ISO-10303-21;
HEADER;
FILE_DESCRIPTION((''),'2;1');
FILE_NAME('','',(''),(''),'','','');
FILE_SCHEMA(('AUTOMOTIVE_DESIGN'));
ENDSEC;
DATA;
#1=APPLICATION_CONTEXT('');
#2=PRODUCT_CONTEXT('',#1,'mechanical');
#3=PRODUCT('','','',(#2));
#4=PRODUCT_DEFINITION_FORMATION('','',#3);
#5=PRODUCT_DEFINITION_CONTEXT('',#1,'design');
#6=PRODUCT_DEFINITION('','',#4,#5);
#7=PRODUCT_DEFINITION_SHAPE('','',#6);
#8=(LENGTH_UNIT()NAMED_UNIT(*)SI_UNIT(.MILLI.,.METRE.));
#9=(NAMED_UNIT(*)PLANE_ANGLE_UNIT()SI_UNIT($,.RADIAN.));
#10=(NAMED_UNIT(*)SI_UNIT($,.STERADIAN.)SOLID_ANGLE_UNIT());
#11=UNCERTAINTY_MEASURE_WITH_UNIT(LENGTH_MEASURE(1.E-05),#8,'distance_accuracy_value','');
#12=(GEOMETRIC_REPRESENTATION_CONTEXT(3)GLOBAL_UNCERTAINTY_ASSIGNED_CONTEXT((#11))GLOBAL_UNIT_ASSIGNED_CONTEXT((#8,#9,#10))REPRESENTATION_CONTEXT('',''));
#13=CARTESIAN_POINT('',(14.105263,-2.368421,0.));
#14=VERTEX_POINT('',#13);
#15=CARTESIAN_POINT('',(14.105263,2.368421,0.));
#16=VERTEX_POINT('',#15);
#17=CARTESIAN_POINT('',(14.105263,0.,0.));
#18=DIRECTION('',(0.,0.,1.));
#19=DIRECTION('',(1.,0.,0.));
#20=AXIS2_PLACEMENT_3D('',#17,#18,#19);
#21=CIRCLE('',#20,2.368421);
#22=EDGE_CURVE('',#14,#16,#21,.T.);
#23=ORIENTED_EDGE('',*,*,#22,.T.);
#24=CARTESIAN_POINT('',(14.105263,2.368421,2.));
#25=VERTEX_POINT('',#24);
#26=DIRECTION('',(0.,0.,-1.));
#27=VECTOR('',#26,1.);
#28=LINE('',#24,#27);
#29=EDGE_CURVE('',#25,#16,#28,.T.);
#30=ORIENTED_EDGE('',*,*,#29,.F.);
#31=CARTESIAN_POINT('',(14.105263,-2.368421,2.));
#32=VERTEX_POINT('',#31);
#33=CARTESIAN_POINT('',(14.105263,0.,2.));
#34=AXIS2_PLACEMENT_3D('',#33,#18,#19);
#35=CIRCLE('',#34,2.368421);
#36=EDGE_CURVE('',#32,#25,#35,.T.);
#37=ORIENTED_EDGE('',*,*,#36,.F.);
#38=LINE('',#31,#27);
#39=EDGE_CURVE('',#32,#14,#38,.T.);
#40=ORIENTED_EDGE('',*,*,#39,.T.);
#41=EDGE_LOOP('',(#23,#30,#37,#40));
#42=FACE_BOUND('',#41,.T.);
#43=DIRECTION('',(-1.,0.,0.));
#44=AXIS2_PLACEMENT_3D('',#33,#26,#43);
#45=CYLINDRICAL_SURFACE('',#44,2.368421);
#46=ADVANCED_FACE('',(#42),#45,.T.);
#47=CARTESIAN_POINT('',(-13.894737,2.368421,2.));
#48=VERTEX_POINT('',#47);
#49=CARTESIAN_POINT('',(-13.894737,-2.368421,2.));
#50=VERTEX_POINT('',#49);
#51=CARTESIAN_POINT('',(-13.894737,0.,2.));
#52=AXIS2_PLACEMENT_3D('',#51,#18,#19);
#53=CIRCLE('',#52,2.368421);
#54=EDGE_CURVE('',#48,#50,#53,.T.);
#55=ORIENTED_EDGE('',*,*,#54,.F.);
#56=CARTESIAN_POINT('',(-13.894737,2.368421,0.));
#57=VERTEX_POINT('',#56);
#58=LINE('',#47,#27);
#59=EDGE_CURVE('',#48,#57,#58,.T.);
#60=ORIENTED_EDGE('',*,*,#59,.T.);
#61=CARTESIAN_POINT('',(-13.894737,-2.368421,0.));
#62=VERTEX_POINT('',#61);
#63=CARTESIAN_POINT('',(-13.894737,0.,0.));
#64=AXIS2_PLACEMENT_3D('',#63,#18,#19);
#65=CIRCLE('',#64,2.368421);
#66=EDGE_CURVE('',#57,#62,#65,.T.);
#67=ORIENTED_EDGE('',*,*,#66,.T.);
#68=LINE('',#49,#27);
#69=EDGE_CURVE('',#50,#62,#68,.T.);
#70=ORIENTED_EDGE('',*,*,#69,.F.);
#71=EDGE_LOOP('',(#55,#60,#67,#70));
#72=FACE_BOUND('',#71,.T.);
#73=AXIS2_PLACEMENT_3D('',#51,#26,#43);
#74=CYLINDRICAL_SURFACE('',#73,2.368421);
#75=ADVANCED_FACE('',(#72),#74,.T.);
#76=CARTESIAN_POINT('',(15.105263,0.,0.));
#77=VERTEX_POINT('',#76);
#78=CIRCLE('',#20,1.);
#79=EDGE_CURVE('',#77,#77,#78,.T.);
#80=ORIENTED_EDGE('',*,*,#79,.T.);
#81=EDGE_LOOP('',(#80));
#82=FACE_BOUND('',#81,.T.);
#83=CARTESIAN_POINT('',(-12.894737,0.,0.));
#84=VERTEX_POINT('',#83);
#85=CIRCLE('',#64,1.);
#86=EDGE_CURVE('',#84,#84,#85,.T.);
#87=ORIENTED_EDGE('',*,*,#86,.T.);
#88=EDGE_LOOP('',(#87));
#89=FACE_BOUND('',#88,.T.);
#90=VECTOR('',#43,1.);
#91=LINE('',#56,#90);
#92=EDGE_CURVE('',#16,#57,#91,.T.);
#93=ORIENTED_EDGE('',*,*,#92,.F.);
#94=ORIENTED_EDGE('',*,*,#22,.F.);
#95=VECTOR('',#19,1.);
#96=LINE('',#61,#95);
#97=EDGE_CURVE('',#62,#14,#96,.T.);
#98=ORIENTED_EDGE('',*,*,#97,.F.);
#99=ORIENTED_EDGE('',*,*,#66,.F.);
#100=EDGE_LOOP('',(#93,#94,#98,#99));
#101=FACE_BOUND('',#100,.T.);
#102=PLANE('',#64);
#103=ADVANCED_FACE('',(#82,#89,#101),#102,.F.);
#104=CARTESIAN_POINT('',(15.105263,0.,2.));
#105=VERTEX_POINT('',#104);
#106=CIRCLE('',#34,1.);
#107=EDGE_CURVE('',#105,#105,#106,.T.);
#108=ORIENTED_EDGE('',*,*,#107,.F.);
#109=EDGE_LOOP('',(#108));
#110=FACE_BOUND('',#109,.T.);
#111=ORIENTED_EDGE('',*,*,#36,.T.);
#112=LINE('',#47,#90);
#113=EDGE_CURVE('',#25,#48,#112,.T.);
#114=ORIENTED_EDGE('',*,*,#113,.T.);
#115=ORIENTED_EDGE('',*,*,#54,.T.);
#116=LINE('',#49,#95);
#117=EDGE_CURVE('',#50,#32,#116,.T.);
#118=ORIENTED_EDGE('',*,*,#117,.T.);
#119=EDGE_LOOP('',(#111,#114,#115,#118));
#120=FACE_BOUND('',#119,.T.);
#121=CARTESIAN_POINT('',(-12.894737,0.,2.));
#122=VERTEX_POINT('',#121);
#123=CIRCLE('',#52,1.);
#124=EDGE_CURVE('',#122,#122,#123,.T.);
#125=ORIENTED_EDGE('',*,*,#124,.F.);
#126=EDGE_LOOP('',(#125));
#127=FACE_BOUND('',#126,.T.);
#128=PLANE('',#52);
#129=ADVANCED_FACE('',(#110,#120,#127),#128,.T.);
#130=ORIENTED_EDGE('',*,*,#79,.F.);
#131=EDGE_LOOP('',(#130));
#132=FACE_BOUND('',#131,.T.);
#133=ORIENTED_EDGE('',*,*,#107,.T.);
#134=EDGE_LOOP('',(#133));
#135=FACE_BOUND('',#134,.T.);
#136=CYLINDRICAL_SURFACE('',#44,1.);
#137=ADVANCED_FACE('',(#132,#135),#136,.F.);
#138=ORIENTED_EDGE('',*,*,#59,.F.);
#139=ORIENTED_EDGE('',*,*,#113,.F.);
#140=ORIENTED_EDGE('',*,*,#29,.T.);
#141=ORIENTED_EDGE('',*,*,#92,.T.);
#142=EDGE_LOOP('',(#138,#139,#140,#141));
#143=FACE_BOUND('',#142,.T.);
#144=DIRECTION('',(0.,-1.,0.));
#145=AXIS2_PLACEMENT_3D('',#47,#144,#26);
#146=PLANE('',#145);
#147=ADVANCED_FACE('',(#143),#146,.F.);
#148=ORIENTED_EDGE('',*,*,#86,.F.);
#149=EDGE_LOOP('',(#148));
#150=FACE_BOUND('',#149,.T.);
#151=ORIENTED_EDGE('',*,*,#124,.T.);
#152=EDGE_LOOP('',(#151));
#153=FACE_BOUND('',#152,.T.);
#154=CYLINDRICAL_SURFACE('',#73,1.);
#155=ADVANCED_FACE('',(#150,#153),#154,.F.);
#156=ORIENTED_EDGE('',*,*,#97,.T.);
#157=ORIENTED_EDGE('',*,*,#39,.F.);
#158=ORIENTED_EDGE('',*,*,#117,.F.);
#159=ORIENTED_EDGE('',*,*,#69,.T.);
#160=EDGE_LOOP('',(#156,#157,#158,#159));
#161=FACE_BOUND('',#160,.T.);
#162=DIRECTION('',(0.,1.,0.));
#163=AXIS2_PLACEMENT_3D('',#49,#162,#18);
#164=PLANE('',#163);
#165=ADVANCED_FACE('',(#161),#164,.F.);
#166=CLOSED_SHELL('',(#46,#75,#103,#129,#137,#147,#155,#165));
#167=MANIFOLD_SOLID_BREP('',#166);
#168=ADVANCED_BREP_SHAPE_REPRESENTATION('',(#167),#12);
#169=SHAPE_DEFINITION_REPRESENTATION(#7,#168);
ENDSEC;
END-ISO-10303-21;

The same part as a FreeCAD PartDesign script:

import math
import FreeCAD as App
import Part
import Sketcher

V = App.Vector
Q = App.Units.Quantity

doc = App.newDocument("Part")
body = doc.addObject("PartDesign::Body", "Body")

# Sketch on XY plane
sketch1 = body.newObject("Sketcher::SketchObject", "Sketch")
sketch1.AttachmentSupport = (doc.getObject("XY_Plane"), [""])
sketch1.MapMode = "FlatFace"
sketch1.addGeometry([
    Part.LineSegment(V(14.105263, 2.368421, 0), V(-13.894737, 2.368421, 0)),  # 0
    Part.ArcOfCircle(Part.Circle(V(-13.894737, 0, 0), V(0, 0, 1), 2.368421), math.radians(90), math.radians(270)),  # 1
    Part.LineSegment(V(-13.894737, -2.368421, 0), V(14.105263, -2.368421, 0)),  # 2
    Part.ArcOfCircle(Part.Circle(V(14.105263, 0, 0), V(0, 0, 1), 2.368421), math.radians(-90), math.radians(90)),  # 3
    Part.Circle(V(14.105263, 0, 0), V(0, 0, 1), 1),  # 4
    Part.Circle(V(-13.894737, 0, 0), V(0, 0, 1), 1),  # 5
], False)
sketch1.addConstraint([
    Sketcher.Constraint("Tangent", 0, 2, 1, 1),
    Sketcher.Constraint("Tangent", 1, 2, 2, 1),
    Sketcher.Constraint("Tangent", 2, 2, 3, 1),
    Sketcher.Constraint("Tangent", 3, 2, 0, 1),
    Sketcher.Constraint("Horizontal", 0),
    Sketcher.Constraint("Horizontal", 2),
    Sketcher.Constraint("Coincident", 4, 3, 3, 3),
    Sketcher.Constraint("Coincident", 5, 3, 1, 3),
    Sketcher.Constraint("Equal", 4, 5),
    Sketcher.Constraint("PointOnObject", 1, 3, -1),
    Sketcher.Constraint("Diameter", 4, Q("2 mm")),
    Sketcher.Constraint("DistanceX", 0, 2, 0, 1, Q("28 mm")),
    Sketcher.Constraint("Radius", 1, Q("2.368421 mm")),
    Sketcher.Constraint("DistanceX", 1, 3, -1, 1, Q("13.894737 mm")),
])
pad1 = body.newObject("PartDesign::Pad", "Pad")
pad1.Profile = sketch1
pad1.Length = 2

doc.recompute()
